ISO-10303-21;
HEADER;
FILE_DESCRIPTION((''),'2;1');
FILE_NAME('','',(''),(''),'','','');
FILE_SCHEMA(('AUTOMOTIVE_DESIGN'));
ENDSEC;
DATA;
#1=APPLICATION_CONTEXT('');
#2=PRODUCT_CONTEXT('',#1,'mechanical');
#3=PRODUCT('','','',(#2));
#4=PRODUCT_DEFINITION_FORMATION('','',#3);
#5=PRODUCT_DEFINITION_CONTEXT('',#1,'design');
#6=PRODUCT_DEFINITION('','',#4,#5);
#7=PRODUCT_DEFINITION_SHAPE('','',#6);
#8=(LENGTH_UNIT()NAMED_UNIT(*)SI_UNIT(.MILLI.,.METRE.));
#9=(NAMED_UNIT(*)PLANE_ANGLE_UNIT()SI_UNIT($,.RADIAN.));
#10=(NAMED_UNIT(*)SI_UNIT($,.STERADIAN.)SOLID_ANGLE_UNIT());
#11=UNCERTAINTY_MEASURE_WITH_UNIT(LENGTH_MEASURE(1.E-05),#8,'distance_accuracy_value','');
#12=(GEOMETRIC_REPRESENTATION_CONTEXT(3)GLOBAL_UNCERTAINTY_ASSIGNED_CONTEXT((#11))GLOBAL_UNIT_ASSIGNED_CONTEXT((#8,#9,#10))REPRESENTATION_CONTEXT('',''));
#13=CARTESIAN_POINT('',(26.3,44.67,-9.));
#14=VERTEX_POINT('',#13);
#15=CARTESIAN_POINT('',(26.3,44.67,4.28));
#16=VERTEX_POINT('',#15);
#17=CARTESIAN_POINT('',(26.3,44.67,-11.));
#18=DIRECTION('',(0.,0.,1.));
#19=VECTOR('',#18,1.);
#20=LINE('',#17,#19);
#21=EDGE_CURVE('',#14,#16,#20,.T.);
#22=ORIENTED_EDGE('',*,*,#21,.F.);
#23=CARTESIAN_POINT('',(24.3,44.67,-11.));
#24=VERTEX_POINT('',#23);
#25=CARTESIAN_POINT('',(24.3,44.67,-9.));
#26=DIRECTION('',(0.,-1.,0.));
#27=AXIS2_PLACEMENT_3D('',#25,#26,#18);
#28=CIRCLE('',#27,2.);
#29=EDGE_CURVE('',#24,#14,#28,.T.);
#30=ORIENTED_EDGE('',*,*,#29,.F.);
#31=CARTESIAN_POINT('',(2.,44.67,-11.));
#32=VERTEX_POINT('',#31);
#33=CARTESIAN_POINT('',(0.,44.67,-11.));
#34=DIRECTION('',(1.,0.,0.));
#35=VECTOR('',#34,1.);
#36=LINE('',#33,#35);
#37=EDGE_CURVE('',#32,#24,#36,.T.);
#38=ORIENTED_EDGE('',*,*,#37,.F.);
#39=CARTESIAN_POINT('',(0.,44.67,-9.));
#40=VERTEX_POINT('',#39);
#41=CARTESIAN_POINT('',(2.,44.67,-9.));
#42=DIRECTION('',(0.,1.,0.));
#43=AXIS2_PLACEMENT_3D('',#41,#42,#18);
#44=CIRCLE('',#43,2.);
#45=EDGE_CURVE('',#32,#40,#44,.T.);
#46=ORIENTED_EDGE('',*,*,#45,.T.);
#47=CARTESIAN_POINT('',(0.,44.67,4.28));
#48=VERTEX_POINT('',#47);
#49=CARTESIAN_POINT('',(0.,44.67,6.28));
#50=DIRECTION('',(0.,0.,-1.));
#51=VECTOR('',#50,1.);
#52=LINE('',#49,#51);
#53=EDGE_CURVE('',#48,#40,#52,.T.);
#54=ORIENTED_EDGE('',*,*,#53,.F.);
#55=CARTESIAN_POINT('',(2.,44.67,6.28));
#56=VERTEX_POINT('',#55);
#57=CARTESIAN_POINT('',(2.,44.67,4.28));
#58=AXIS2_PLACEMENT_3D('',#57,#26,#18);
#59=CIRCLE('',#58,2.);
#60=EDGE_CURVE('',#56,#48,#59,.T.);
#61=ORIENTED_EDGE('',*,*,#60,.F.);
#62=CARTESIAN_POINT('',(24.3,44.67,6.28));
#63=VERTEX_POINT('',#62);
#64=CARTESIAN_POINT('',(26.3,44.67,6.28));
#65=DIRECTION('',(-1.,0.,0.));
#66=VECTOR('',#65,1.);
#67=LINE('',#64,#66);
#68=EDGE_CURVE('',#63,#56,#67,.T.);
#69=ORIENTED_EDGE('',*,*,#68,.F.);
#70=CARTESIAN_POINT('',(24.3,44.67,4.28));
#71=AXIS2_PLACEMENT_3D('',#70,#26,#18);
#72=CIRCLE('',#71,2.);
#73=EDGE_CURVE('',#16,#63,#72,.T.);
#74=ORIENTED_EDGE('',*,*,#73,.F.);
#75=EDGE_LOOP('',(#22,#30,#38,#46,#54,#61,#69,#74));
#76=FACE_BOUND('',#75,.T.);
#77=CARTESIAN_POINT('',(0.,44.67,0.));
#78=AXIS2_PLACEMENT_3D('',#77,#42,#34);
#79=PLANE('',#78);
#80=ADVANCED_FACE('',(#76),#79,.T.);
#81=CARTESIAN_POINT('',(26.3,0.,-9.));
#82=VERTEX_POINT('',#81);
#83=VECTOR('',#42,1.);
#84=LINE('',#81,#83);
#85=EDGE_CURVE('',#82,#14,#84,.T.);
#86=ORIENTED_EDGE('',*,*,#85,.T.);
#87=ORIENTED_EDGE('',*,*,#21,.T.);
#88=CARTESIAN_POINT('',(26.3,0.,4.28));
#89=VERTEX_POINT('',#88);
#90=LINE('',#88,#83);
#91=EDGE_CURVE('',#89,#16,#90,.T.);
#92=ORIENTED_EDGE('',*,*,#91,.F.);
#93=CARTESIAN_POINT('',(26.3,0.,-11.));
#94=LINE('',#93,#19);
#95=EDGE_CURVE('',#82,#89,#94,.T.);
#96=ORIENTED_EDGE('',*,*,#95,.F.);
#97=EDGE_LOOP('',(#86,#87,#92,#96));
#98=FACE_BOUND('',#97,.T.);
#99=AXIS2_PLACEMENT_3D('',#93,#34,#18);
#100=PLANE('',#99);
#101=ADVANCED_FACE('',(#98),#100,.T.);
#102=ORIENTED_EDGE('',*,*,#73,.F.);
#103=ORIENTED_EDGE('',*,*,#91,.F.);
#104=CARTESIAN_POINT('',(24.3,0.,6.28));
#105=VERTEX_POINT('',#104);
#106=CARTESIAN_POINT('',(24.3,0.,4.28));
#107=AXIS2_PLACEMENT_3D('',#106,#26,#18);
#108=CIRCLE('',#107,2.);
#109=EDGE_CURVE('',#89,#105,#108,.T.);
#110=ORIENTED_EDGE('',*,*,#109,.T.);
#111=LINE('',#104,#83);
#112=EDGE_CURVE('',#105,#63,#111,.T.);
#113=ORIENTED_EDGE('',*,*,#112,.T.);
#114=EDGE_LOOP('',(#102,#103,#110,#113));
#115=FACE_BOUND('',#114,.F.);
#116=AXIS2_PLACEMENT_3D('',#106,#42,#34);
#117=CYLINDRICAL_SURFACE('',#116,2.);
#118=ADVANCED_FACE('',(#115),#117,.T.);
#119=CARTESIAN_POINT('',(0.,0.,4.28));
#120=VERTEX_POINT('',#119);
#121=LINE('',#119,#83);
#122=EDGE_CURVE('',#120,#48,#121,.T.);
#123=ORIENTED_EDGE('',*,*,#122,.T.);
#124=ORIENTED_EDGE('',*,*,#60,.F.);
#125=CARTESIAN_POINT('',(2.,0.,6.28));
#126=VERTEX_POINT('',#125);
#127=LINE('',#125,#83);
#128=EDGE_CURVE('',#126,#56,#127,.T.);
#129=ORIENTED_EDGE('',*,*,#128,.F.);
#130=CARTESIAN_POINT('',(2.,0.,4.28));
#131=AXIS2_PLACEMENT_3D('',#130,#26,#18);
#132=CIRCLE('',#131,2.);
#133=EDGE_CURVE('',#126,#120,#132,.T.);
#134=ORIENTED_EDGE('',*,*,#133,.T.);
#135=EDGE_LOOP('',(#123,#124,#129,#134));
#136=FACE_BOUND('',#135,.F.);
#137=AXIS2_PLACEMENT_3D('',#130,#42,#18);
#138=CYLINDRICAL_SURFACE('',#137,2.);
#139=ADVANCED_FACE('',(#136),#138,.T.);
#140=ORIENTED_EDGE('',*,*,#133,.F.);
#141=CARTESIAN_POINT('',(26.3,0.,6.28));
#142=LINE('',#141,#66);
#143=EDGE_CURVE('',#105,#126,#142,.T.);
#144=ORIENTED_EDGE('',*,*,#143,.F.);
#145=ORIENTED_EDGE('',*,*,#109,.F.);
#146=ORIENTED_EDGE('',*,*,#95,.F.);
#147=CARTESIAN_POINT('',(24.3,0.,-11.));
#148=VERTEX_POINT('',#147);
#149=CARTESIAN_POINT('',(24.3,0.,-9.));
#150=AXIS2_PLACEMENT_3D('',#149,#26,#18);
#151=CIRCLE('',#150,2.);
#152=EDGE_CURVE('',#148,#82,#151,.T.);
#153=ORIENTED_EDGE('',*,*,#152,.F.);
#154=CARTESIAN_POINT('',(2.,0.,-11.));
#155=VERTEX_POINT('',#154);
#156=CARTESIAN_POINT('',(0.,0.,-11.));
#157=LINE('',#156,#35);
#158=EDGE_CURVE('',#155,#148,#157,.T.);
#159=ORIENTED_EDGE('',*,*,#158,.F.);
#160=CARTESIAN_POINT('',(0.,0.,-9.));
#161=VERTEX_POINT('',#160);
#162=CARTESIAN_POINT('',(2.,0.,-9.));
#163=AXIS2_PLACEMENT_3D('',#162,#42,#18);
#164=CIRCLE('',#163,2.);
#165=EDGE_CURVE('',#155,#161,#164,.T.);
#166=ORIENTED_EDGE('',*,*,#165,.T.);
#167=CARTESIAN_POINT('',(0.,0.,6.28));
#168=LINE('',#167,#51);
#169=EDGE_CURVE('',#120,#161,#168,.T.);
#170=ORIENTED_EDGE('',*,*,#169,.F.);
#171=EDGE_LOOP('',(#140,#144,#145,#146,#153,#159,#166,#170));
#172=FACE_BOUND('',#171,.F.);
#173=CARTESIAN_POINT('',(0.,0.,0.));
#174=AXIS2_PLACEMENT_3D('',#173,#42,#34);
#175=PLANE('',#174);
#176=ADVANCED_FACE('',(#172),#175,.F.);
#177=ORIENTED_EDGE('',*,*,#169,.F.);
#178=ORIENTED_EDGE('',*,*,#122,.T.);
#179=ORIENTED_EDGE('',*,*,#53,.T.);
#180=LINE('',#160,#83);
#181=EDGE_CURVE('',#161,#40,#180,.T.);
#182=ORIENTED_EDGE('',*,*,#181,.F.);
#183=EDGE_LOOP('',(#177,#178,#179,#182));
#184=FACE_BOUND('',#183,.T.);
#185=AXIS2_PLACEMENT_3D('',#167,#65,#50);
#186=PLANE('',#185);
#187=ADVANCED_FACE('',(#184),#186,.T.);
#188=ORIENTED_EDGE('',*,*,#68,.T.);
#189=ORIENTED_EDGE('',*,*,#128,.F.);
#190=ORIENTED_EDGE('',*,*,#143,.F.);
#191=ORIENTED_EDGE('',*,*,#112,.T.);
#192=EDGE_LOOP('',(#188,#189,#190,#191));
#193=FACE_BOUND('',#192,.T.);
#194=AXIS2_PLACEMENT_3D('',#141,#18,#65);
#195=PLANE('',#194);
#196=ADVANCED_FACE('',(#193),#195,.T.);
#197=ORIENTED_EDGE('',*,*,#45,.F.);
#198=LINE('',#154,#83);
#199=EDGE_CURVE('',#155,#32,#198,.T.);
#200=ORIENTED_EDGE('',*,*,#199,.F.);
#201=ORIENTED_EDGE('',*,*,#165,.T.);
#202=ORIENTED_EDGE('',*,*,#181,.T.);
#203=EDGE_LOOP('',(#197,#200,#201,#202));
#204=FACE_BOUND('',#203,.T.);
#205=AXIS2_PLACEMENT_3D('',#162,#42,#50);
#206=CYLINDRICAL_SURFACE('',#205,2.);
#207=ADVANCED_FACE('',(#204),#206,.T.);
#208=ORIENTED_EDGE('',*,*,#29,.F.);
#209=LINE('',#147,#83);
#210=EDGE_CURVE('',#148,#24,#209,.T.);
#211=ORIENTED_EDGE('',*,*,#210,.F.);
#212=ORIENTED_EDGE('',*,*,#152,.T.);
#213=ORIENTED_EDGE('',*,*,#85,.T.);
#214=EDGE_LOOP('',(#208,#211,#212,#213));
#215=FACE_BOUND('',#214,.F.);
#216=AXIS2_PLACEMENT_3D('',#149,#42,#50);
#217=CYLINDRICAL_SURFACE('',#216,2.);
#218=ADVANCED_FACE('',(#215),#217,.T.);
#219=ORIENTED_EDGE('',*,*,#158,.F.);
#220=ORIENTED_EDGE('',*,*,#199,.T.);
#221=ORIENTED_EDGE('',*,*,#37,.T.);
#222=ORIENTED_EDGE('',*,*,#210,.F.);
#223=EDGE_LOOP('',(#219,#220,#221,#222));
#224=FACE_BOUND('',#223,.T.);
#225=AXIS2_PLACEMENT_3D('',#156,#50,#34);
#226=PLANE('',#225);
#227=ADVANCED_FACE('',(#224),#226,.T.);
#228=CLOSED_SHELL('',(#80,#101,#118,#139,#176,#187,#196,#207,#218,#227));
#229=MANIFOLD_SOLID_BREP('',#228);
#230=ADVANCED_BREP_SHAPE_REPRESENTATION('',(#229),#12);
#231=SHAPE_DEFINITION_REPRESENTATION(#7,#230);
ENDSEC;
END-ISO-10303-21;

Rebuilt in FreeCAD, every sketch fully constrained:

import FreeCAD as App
import Part
import Sketcher
from FreeCAD import Vector


def edges_at(feature, points):
    """Names of the edges that pass closest to the given points."""
    edges = feature.Shape.Edges
    near = lambda p: min(range(len(edges)), key=lambda i: edges[i].distToShape(Part.Vertex(*p))[0])
    return sorted({f"Edge{near(p) + 1}" for p in points})

doc = App.newDocument("Part")
body = doc.addObject("PartDesign::Body", "Body")

sketch1 = body.newObject("Sketcher::SketchObject", "Sketch")
sketch1.AttachmentSupport = (doc.getObject("XZ_Plane"), [""])
sketch1.MapMode = "FlatFace"
sketch1.addGeometry([
    Part.LineSegment(Vector(26.3, -11, 0), Vector(0, -11, 0)),
    Part.LineSegment(Vector(0, -11, 0), Vector(0, 6.28, 0)),
    Part.LineSegment(Vector(0, 6.28, 0), Vector(26.3, 6.28, 0)),
    Part.LineSegment(Vector(26.3, 6.28, 0), Vector(26.3, -11, 0)),
], False)
sketch1.addConstraint([
    Sketcher.Constraint("Coincident", 0, 2, 1, 1),
    Sketcher.Constraint("Coincident", 1, 2, 2, 1),
    Sketcher.Constraint("Coincident", 2, 2, 3, 1),
    Sketcher.Constraint("Coincident", 3, 2, 0, 1),
    Sketcher.Constraint("Horizontal", 0),
    Sketcher.Constraint("Vertical", 1),
    Sketcher.Constraint("Horizontal", 2),
    Sketcher.Constraint("Vertical", 3),
    Sketcher.Constraint("PointOnObject", 0, 2, -2),
    Sketcher.Constraint("DistanceX", 0, 2, 0, 1, 26.3),
    Sketcher.Constraint("DistanceY", 1, 1, 1, 2, 17.28),
    Sketcher.Constraint("DistanceY", 0, 2, -1, 1, 11.0),
])
pad1 = body.newObject("PartDesign::Pad", "Pad")
pad1.Profile = sketch1
pad1.Length = 44.67
pad1.Reversed = True
doc.recompute()

fillet = body.newObject("PartDesign::Fillet", "Fillet")
fillet.Base = (pad1, edges_at(pad1, [
    (26.3, 22.335, 6.28),
    (26.3, 22.335, -11),
    (0, 22.335, -11),
    (0, 22.335, 6.28),
]))
fillet.Radius = 2

doc.recompute()
